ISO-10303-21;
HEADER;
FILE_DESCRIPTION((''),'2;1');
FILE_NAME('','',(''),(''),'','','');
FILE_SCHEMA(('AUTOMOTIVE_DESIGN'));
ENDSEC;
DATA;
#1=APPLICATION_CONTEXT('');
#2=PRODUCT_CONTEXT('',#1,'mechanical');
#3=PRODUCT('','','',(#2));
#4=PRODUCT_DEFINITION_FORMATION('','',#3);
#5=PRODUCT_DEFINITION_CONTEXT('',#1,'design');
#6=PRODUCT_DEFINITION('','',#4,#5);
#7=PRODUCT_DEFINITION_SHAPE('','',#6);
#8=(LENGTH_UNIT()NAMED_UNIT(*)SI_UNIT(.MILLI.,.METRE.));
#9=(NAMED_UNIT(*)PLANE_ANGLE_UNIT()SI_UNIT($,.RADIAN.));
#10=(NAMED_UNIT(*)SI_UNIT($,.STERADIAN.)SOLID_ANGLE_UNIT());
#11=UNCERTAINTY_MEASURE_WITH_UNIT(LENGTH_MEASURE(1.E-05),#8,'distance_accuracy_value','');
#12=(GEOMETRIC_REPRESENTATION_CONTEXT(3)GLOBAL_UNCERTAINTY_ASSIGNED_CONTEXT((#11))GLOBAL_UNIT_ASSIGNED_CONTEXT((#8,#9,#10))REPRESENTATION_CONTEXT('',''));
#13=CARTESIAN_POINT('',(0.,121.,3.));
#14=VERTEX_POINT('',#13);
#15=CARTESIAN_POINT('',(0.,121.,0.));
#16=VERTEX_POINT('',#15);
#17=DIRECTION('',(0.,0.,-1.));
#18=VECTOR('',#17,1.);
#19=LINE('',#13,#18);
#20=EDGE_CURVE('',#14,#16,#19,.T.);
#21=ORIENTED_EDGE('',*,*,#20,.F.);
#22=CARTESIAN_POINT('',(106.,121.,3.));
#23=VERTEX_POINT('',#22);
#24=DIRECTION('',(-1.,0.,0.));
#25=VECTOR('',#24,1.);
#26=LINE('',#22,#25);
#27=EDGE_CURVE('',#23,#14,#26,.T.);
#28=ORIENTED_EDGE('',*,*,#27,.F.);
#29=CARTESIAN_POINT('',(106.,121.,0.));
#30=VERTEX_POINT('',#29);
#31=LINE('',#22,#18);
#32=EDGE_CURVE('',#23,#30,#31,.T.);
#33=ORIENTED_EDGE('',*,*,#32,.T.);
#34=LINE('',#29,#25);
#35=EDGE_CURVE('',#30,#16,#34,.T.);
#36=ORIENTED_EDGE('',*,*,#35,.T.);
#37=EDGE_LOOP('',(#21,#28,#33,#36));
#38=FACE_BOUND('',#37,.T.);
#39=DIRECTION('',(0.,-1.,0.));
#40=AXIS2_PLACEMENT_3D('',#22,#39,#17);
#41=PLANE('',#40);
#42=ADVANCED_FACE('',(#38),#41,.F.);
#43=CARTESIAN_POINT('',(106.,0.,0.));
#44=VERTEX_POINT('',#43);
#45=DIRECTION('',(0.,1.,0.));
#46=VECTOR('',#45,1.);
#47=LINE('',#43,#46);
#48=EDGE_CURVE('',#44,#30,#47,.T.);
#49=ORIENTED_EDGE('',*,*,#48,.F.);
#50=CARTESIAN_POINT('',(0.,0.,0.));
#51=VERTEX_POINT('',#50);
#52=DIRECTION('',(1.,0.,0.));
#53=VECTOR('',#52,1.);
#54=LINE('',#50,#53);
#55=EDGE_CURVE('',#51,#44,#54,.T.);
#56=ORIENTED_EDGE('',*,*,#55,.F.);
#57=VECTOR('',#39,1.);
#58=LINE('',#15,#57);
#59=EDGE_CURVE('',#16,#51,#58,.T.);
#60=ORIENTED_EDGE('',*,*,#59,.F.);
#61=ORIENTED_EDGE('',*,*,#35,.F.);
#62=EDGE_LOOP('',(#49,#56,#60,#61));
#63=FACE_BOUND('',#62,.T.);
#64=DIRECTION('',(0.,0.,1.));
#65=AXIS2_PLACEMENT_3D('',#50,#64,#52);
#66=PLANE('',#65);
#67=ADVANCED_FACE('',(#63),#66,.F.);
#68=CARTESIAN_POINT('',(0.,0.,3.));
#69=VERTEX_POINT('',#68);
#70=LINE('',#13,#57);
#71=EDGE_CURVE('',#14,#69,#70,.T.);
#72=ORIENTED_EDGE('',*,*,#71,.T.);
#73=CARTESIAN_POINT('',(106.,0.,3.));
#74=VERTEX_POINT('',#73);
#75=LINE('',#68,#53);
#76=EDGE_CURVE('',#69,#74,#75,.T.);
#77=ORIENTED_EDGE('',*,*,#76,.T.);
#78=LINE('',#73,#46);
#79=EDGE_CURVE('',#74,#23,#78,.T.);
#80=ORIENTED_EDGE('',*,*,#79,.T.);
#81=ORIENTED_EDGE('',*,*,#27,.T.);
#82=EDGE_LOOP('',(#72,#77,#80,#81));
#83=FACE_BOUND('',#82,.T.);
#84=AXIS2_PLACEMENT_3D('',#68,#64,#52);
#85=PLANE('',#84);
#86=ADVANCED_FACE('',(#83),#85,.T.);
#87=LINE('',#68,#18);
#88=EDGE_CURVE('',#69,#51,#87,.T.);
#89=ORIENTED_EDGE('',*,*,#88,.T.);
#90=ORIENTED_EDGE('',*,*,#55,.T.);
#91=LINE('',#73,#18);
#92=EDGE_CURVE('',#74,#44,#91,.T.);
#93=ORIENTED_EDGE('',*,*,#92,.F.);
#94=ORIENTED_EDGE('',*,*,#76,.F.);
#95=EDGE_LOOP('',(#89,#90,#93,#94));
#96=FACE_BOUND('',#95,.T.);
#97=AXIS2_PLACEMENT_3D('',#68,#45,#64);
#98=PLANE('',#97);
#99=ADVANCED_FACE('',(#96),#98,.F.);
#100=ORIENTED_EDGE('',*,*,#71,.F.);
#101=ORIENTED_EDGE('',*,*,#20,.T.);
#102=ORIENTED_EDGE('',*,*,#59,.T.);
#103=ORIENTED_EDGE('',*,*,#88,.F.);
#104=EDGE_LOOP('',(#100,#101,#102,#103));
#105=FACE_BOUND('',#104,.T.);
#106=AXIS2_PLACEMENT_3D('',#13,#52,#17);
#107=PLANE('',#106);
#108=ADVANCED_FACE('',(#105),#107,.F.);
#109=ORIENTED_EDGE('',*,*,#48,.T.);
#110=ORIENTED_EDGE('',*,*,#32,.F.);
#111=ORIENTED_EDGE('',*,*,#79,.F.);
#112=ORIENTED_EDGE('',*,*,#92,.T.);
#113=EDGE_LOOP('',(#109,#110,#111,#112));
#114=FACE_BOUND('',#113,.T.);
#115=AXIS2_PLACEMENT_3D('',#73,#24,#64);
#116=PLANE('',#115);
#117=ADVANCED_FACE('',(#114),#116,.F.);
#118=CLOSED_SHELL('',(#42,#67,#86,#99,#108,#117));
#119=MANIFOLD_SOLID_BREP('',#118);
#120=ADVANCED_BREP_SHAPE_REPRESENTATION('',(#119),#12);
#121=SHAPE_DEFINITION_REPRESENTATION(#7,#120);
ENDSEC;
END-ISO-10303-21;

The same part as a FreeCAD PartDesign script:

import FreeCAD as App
import Part
import Sketcher

V = App.Vector
Q = App.Units.Quantity


def add_polygon(sketch, points):
    """Adds a closed chain of lines whose ends are joined by coincident constraints."""
    first, n = sketch.GeometryCount, len(points)
    for a, b in zip(points, points[1:] + points[:1]):
        sketch.addGeometry(Part.LineSegment(App.Vector(*a, 0), App.Vector(*b, 0)), False)
    for i in range(n):
        sketch.addConstraint(Sketcher.Constraint("Coincident", first + i, 2, first + (i + 1) % n, 1))

doc = App.newDocument("Part")
body = doc.addObject("PartDesign::Body", "Body")

sketch1 = doc.addObject("Sketcher::SketchObject", "Sketch")
body.addObject(sketch1)
sketch1.AttachmentSupport = (doc.XY_Plane, [""])
sketch1.MapMode = "FlatFace"
add_polygon(sketch1, [(0, 121), (0, 0), (106, 0), (106, 121)])
sketch1.addConstraint(Sketcher.Constraint("Vertical", 0))
sketch1.addConstraint(Sketcher.Constraint("Horizontal", 1))
sketch1.addConstraint(Sketcher.Constraint("Vertical", 2))
sketch1.addConstraint(Sketcher.Constraint("Horizontal", 3))
sketch1.addConstraint(Sketcher.Constraint("Coincident", 0, 2, -1, 1))
sketch1.addConstraint(Sketcher.Constraint("DistanceX", 1, 1, 1, 2, Q("106 mm")))
sketch1.addConstraint(Sketcher.Constraint("DistanceY", 0, 2, 0, 1, Q("121 mm")))
pad1 = doc.addObject("PartDesign::Pad", "Pad")
body.addObject(pad1)
pad1.Profile = sketch1
pad1.Length = 3

doc.recompute()
